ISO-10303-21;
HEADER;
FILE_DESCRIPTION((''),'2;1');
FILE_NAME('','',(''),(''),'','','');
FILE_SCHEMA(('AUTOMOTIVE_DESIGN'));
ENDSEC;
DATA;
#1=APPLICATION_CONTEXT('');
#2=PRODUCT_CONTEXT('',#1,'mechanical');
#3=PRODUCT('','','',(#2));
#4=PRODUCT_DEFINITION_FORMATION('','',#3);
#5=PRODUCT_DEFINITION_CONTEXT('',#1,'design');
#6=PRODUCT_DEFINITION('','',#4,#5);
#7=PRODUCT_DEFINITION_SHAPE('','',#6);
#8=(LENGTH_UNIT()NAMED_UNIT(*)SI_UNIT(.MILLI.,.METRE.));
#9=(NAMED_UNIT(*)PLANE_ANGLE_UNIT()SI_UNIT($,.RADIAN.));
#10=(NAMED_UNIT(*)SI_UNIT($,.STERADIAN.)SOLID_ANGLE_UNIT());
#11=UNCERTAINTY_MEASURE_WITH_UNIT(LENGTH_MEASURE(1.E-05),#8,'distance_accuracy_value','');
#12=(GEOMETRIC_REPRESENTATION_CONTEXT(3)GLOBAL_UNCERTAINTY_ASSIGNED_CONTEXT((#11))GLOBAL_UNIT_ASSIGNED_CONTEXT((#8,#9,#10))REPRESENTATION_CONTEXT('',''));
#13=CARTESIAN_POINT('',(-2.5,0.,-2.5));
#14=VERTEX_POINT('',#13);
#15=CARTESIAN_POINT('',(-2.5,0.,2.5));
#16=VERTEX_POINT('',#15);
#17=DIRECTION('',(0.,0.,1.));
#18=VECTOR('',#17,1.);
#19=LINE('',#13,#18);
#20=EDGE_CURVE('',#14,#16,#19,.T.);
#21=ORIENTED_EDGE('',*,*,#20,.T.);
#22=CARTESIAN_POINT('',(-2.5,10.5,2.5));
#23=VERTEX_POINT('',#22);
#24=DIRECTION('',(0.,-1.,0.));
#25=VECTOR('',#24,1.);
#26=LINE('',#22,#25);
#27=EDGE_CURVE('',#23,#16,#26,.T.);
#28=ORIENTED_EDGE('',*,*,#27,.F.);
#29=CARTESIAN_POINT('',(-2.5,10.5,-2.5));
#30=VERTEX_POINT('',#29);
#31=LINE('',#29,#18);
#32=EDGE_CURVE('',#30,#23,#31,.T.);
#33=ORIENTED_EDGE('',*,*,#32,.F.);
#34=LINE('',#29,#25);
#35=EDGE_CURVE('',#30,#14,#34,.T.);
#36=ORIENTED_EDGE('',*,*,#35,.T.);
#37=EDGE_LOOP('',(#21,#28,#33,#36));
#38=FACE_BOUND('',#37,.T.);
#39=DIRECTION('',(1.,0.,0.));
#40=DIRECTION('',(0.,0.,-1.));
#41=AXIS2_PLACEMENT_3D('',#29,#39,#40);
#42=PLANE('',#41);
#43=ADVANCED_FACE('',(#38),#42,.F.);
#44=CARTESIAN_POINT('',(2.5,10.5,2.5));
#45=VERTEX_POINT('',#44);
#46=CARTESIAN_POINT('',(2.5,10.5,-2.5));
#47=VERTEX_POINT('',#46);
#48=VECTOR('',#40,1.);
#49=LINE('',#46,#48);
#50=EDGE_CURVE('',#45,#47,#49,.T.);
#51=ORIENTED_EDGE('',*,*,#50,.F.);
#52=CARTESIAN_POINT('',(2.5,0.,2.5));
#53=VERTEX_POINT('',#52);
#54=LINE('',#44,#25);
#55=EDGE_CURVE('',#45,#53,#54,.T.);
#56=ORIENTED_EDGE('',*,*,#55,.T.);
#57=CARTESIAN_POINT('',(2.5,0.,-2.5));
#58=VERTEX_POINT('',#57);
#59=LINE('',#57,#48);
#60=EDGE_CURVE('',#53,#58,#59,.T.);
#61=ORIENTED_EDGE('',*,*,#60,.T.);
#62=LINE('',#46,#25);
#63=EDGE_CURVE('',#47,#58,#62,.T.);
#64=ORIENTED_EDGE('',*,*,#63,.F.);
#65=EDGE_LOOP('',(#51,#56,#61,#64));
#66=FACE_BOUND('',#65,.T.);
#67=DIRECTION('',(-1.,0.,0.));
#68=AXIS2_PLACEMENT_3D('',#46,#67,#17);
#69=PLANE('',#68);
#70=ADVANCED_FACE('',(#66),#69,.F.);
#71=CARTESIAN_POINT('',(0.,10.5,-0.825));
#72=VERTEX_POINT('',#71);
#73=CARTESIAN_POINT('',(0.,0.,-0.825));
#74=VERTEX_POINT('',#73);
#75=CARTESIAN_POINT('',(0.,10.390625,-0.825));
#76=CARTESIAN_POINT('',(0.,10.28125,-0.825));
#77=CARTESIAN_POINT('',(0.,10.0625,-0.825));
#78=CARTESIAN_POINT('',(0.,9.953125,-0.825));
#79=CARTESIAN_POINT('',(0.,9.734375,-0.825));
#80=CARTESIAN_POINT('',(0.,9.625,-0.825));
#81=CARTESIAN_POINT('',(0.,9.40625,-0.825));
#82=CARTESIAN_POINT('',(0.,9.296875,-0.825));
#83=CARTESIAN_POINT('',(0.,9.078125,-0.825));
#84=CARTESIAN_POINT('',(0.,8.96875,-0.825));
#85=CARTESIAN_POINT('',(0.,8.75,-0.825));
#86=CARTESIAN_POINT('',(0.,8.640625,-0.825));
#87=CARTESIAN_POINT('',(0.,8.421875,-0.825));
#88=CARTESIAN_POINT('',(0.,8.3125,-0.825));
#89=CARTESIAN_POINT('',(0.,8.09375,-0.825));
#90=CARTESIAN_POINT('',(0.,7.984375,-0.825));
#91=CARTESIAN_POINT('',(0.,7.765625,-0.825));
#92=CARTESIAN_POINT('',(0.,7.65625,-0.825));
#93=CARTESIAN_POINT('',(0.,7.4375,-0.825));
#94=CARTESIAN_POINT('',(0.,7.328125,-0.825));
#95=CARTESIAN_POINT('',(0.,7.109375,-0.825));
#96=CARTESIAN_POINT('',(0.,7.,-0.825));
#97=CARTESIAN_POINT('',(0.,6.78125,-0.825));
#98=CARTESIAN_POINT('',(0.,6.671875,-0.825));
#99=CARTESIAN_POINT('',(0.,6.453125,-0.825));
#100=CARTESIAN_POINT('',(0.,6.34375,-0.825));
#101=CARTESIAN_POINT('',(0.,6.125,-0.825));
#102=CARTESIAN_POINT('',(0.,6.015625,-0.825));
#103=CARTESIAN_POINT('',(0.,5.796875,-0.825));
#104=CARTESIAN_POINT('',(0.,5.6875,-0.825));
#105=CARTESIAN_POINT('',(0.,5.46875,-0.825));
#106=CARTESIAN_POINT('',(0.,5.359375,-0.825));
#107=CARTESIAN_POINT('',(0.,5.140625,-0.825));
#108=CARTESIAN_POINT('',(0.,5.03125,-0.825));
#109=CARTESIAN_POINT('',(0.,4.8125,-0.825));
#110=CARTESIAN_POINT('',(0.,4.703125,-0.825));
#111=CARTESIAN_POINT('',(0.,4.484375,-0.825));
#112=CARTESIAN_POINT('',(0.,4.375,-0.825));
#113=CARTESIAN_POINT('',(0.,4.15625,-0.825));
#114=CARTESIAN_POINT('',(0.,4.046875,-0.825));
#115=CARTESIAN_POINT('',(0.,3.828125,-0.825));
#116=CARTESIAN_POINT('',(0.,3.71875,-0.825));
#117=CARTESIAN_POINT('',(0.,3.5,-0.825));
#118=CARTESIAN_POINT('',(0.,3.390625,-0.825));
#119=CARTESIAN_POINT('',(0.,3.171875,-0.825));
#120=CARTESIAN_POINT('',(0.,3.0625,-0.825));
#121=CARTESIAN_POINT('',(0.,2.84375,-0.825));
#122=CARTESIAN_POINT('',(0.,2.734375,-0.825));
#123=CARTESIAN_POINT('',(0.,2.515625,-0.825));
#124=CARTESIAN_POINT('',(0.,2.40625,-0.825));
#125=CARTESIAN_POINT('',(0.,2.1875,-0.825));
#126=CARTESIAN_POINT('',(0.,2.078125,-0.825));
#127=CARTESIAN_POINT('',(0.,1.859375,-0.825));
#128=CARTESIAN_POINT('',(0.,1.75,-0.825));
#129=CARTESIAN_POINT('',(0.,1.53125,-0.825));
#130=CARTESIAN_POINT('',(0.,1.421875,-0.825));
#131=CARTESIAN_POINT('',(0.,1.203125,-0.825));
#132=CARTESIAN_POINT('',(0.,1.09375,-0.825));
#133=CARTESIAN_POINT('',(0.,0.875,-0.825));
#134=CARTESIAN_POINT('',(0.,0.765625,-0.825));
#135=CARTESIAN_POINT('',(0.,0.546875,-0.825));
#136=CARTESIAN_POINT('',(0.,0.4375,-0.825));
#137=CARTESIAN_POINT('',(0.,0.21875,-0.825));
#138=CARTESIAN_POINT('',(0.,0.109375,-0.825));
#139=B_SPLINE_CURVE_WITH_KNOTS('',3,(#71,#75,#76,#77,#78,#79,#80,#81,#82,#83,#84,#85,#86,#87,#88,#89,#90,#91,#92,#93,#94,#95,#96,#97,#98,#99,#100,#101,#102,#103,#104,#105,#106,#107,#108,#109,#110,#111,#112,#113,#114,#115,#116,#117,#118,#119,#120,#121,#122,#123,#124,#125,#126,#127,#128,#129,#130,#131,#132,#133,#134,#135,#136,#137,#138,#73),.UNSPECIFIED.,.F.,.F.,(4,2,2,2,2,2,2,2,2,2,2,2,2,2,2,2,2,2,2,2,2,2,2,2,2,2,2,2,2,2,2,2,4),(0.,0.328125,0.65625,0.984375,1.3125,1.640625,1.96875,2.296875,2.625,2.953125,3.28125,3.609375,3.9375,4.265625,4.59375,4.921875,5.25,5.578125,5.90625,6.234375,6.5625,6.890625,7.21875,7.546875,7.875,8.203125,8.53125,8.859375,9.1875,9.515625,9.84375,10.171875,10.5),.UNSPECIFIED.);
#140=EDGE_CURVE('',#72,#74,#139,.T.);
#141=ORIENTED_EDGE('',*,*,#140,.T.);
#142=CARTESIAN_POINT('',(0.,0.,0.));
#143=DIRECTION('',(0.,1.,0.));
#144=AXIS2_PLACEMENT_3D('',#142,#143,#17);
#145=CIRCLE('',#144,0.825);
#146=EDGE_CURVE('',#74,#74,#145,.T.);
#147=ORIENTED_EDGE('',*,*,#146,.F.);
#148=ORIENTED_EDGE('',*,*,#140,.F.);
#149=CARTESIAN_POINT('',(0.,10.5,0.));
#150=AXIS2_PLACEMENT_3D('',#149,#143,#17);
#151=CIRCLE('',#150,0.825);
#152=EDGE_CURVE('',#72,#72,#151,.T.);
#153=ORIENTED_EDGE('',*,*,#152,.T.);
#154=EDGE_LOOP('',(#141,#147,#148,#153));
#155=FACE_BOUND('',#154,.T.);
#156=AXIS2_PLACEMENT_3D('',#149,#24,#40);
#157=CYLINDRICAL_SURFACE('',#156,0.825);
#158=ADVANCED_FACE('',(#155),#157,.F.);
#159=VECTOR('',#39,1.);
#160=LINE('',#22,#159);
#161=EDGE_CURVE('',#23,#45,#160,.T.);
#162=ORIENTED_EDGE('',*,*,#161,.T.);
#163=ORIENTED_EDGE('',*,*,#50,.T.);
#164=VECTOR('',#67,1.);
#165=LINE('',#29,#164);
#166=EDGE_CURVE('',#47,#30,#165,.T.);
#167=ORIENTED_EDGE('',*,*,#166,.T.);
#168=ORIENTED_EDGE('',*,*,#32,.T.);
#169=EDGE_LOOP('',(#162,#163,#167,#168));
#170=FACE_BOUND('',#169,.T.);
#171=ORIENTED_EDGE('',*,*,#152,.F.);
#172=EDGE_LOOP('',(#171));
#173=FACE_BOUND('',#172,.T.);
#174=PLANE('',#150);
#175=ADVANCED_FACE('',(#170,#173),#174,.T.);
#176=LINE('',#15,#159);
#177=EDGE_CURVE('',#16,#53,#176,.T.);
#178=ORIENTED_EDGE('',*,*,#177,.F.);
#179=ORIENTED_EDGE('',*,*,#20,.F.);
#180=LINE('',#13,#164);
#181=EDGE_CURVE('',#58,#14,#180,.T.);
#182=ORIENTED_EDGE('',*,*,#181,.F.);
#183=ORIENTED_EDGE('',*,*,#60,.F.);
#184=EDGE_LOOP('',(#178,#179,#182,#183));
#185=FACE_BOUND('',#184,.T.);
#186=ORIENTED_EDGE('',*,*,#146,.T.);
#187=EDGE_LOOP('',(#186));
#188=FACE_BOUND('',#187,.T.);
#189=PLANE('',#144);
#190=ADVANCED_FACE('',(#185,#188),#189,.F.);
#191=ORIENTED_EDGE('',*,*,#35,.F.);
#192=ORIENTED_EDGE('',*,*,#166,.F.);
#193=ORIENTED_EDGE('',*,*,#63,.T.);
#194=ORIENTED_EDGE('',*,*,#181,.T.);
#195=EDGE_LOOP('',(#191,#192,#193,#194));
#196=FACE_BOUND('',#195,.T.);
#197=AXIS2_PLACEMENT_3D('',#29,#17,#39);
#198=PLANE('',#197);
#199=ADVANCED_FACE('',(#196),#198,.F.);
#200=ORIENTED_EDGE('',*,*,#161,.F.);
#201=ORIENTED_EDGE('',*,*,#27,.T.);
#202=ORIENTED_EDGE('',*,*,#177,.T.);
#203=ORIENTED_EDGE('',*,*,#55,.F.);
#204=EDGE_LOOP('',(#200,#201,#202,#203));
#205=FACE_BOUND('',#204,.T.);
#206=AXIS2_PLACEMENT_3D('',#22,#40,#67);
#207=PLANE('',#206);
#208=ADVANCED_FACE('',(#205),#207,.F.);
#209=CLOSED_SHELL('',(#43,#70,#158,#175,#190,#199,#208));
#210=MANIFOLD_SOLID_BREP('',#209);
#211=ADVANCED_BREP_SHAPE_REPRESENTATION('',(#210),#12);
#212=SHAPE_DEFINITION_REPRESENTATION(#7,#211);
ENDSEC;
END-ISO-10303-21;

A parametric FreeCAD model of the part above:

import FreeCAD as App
import Part
import Sketcher
Q = App.Units.Quantity

doc = App.newDocument("Part")
body = doc.addObject("PartDesign::Body", "Body")

# Sketch on XZ plane
sketch1 = body.newObject("Sketcher::SketchObject", "Sketch")
sketch1.AttachmentSupport = (doc.getObject("XZ_Plane"), [""])
sketch1.MapMode = "FlatFace"
sketch1.addGeometry(Part.LineSegment(App.Vector(-2.5, -2.5, 0), App.Vector(-2.5, 2.5, 0)), False)
sketch1.addGeometry(Part.LineSegment(App.Vector(-2.5, 2.5, 0), App.Vector(2.5, 2.5, 0)), False)
sketch1.addGeometry(Part.LineSegment(App.Vector(2.5, 2.5, 0), App.Vector(2.5, -2.5, 0)), False)
sketch1.addGeometry(Part.LineSegment(App.Vector(2.5, -2.5, 0), App.Vector(-2.5, -2.5, 0)), False)
sketch1.addGeometry(Part.Circle(App.Vector(0, 0, 0), App.Vector(0, 0, 1), 0.8), False)
sketch1.addConstraint(Sketcher.Constraint("Coincident", 0, 2, 1, 1))
sketch1.addConstraint(Sketcher.Constraint("Coincident", 1, 2, 2, 1))
sketch1.addConstraint(Sketcher.Constraint("Coincident", 2, 2, 3, 1))
sketch1.addConstraint(Sketcher.Constraint("Coincident", 3, 2, 0, 1))
sketch1.addConstraint(Sketcher.Constraint("Vertical", 0))
sketch1.addConstraint(Sketcher.Constraint("Horizontal", 1))
sketch1.addConstraint(Sketcher.Constraint("Vertical", 2))
sketch1.addConstraint(Sketcher.Constraint("Horizontal", 3))
sketch1.addConstraint(Sketcher.Constraint("Coincident", 4, 3, -1, 1))
sketch1.addConstraint(Sketcher.Constraint("Symmetric", 0, 2, 2, 2, -1, 1))
sketch1.addConstraint(Sketcher.Constraint("Equal", 3, 0))
sketch1.addConstraint(Sketcher.Constraint("Diameter", 4, Q("1.65 mm")))
sketch1.addConstraint(Sketcher.Constraint("DistanceX", 1, 1, 1, 2, Q("5 mm")))
pad1 = body.newObject("PartDesign::Pad", "Pad")
pad1.Profile = sketch1
pad1.Length = 10.5
pad1.Reversed = True

doc.recompute()
